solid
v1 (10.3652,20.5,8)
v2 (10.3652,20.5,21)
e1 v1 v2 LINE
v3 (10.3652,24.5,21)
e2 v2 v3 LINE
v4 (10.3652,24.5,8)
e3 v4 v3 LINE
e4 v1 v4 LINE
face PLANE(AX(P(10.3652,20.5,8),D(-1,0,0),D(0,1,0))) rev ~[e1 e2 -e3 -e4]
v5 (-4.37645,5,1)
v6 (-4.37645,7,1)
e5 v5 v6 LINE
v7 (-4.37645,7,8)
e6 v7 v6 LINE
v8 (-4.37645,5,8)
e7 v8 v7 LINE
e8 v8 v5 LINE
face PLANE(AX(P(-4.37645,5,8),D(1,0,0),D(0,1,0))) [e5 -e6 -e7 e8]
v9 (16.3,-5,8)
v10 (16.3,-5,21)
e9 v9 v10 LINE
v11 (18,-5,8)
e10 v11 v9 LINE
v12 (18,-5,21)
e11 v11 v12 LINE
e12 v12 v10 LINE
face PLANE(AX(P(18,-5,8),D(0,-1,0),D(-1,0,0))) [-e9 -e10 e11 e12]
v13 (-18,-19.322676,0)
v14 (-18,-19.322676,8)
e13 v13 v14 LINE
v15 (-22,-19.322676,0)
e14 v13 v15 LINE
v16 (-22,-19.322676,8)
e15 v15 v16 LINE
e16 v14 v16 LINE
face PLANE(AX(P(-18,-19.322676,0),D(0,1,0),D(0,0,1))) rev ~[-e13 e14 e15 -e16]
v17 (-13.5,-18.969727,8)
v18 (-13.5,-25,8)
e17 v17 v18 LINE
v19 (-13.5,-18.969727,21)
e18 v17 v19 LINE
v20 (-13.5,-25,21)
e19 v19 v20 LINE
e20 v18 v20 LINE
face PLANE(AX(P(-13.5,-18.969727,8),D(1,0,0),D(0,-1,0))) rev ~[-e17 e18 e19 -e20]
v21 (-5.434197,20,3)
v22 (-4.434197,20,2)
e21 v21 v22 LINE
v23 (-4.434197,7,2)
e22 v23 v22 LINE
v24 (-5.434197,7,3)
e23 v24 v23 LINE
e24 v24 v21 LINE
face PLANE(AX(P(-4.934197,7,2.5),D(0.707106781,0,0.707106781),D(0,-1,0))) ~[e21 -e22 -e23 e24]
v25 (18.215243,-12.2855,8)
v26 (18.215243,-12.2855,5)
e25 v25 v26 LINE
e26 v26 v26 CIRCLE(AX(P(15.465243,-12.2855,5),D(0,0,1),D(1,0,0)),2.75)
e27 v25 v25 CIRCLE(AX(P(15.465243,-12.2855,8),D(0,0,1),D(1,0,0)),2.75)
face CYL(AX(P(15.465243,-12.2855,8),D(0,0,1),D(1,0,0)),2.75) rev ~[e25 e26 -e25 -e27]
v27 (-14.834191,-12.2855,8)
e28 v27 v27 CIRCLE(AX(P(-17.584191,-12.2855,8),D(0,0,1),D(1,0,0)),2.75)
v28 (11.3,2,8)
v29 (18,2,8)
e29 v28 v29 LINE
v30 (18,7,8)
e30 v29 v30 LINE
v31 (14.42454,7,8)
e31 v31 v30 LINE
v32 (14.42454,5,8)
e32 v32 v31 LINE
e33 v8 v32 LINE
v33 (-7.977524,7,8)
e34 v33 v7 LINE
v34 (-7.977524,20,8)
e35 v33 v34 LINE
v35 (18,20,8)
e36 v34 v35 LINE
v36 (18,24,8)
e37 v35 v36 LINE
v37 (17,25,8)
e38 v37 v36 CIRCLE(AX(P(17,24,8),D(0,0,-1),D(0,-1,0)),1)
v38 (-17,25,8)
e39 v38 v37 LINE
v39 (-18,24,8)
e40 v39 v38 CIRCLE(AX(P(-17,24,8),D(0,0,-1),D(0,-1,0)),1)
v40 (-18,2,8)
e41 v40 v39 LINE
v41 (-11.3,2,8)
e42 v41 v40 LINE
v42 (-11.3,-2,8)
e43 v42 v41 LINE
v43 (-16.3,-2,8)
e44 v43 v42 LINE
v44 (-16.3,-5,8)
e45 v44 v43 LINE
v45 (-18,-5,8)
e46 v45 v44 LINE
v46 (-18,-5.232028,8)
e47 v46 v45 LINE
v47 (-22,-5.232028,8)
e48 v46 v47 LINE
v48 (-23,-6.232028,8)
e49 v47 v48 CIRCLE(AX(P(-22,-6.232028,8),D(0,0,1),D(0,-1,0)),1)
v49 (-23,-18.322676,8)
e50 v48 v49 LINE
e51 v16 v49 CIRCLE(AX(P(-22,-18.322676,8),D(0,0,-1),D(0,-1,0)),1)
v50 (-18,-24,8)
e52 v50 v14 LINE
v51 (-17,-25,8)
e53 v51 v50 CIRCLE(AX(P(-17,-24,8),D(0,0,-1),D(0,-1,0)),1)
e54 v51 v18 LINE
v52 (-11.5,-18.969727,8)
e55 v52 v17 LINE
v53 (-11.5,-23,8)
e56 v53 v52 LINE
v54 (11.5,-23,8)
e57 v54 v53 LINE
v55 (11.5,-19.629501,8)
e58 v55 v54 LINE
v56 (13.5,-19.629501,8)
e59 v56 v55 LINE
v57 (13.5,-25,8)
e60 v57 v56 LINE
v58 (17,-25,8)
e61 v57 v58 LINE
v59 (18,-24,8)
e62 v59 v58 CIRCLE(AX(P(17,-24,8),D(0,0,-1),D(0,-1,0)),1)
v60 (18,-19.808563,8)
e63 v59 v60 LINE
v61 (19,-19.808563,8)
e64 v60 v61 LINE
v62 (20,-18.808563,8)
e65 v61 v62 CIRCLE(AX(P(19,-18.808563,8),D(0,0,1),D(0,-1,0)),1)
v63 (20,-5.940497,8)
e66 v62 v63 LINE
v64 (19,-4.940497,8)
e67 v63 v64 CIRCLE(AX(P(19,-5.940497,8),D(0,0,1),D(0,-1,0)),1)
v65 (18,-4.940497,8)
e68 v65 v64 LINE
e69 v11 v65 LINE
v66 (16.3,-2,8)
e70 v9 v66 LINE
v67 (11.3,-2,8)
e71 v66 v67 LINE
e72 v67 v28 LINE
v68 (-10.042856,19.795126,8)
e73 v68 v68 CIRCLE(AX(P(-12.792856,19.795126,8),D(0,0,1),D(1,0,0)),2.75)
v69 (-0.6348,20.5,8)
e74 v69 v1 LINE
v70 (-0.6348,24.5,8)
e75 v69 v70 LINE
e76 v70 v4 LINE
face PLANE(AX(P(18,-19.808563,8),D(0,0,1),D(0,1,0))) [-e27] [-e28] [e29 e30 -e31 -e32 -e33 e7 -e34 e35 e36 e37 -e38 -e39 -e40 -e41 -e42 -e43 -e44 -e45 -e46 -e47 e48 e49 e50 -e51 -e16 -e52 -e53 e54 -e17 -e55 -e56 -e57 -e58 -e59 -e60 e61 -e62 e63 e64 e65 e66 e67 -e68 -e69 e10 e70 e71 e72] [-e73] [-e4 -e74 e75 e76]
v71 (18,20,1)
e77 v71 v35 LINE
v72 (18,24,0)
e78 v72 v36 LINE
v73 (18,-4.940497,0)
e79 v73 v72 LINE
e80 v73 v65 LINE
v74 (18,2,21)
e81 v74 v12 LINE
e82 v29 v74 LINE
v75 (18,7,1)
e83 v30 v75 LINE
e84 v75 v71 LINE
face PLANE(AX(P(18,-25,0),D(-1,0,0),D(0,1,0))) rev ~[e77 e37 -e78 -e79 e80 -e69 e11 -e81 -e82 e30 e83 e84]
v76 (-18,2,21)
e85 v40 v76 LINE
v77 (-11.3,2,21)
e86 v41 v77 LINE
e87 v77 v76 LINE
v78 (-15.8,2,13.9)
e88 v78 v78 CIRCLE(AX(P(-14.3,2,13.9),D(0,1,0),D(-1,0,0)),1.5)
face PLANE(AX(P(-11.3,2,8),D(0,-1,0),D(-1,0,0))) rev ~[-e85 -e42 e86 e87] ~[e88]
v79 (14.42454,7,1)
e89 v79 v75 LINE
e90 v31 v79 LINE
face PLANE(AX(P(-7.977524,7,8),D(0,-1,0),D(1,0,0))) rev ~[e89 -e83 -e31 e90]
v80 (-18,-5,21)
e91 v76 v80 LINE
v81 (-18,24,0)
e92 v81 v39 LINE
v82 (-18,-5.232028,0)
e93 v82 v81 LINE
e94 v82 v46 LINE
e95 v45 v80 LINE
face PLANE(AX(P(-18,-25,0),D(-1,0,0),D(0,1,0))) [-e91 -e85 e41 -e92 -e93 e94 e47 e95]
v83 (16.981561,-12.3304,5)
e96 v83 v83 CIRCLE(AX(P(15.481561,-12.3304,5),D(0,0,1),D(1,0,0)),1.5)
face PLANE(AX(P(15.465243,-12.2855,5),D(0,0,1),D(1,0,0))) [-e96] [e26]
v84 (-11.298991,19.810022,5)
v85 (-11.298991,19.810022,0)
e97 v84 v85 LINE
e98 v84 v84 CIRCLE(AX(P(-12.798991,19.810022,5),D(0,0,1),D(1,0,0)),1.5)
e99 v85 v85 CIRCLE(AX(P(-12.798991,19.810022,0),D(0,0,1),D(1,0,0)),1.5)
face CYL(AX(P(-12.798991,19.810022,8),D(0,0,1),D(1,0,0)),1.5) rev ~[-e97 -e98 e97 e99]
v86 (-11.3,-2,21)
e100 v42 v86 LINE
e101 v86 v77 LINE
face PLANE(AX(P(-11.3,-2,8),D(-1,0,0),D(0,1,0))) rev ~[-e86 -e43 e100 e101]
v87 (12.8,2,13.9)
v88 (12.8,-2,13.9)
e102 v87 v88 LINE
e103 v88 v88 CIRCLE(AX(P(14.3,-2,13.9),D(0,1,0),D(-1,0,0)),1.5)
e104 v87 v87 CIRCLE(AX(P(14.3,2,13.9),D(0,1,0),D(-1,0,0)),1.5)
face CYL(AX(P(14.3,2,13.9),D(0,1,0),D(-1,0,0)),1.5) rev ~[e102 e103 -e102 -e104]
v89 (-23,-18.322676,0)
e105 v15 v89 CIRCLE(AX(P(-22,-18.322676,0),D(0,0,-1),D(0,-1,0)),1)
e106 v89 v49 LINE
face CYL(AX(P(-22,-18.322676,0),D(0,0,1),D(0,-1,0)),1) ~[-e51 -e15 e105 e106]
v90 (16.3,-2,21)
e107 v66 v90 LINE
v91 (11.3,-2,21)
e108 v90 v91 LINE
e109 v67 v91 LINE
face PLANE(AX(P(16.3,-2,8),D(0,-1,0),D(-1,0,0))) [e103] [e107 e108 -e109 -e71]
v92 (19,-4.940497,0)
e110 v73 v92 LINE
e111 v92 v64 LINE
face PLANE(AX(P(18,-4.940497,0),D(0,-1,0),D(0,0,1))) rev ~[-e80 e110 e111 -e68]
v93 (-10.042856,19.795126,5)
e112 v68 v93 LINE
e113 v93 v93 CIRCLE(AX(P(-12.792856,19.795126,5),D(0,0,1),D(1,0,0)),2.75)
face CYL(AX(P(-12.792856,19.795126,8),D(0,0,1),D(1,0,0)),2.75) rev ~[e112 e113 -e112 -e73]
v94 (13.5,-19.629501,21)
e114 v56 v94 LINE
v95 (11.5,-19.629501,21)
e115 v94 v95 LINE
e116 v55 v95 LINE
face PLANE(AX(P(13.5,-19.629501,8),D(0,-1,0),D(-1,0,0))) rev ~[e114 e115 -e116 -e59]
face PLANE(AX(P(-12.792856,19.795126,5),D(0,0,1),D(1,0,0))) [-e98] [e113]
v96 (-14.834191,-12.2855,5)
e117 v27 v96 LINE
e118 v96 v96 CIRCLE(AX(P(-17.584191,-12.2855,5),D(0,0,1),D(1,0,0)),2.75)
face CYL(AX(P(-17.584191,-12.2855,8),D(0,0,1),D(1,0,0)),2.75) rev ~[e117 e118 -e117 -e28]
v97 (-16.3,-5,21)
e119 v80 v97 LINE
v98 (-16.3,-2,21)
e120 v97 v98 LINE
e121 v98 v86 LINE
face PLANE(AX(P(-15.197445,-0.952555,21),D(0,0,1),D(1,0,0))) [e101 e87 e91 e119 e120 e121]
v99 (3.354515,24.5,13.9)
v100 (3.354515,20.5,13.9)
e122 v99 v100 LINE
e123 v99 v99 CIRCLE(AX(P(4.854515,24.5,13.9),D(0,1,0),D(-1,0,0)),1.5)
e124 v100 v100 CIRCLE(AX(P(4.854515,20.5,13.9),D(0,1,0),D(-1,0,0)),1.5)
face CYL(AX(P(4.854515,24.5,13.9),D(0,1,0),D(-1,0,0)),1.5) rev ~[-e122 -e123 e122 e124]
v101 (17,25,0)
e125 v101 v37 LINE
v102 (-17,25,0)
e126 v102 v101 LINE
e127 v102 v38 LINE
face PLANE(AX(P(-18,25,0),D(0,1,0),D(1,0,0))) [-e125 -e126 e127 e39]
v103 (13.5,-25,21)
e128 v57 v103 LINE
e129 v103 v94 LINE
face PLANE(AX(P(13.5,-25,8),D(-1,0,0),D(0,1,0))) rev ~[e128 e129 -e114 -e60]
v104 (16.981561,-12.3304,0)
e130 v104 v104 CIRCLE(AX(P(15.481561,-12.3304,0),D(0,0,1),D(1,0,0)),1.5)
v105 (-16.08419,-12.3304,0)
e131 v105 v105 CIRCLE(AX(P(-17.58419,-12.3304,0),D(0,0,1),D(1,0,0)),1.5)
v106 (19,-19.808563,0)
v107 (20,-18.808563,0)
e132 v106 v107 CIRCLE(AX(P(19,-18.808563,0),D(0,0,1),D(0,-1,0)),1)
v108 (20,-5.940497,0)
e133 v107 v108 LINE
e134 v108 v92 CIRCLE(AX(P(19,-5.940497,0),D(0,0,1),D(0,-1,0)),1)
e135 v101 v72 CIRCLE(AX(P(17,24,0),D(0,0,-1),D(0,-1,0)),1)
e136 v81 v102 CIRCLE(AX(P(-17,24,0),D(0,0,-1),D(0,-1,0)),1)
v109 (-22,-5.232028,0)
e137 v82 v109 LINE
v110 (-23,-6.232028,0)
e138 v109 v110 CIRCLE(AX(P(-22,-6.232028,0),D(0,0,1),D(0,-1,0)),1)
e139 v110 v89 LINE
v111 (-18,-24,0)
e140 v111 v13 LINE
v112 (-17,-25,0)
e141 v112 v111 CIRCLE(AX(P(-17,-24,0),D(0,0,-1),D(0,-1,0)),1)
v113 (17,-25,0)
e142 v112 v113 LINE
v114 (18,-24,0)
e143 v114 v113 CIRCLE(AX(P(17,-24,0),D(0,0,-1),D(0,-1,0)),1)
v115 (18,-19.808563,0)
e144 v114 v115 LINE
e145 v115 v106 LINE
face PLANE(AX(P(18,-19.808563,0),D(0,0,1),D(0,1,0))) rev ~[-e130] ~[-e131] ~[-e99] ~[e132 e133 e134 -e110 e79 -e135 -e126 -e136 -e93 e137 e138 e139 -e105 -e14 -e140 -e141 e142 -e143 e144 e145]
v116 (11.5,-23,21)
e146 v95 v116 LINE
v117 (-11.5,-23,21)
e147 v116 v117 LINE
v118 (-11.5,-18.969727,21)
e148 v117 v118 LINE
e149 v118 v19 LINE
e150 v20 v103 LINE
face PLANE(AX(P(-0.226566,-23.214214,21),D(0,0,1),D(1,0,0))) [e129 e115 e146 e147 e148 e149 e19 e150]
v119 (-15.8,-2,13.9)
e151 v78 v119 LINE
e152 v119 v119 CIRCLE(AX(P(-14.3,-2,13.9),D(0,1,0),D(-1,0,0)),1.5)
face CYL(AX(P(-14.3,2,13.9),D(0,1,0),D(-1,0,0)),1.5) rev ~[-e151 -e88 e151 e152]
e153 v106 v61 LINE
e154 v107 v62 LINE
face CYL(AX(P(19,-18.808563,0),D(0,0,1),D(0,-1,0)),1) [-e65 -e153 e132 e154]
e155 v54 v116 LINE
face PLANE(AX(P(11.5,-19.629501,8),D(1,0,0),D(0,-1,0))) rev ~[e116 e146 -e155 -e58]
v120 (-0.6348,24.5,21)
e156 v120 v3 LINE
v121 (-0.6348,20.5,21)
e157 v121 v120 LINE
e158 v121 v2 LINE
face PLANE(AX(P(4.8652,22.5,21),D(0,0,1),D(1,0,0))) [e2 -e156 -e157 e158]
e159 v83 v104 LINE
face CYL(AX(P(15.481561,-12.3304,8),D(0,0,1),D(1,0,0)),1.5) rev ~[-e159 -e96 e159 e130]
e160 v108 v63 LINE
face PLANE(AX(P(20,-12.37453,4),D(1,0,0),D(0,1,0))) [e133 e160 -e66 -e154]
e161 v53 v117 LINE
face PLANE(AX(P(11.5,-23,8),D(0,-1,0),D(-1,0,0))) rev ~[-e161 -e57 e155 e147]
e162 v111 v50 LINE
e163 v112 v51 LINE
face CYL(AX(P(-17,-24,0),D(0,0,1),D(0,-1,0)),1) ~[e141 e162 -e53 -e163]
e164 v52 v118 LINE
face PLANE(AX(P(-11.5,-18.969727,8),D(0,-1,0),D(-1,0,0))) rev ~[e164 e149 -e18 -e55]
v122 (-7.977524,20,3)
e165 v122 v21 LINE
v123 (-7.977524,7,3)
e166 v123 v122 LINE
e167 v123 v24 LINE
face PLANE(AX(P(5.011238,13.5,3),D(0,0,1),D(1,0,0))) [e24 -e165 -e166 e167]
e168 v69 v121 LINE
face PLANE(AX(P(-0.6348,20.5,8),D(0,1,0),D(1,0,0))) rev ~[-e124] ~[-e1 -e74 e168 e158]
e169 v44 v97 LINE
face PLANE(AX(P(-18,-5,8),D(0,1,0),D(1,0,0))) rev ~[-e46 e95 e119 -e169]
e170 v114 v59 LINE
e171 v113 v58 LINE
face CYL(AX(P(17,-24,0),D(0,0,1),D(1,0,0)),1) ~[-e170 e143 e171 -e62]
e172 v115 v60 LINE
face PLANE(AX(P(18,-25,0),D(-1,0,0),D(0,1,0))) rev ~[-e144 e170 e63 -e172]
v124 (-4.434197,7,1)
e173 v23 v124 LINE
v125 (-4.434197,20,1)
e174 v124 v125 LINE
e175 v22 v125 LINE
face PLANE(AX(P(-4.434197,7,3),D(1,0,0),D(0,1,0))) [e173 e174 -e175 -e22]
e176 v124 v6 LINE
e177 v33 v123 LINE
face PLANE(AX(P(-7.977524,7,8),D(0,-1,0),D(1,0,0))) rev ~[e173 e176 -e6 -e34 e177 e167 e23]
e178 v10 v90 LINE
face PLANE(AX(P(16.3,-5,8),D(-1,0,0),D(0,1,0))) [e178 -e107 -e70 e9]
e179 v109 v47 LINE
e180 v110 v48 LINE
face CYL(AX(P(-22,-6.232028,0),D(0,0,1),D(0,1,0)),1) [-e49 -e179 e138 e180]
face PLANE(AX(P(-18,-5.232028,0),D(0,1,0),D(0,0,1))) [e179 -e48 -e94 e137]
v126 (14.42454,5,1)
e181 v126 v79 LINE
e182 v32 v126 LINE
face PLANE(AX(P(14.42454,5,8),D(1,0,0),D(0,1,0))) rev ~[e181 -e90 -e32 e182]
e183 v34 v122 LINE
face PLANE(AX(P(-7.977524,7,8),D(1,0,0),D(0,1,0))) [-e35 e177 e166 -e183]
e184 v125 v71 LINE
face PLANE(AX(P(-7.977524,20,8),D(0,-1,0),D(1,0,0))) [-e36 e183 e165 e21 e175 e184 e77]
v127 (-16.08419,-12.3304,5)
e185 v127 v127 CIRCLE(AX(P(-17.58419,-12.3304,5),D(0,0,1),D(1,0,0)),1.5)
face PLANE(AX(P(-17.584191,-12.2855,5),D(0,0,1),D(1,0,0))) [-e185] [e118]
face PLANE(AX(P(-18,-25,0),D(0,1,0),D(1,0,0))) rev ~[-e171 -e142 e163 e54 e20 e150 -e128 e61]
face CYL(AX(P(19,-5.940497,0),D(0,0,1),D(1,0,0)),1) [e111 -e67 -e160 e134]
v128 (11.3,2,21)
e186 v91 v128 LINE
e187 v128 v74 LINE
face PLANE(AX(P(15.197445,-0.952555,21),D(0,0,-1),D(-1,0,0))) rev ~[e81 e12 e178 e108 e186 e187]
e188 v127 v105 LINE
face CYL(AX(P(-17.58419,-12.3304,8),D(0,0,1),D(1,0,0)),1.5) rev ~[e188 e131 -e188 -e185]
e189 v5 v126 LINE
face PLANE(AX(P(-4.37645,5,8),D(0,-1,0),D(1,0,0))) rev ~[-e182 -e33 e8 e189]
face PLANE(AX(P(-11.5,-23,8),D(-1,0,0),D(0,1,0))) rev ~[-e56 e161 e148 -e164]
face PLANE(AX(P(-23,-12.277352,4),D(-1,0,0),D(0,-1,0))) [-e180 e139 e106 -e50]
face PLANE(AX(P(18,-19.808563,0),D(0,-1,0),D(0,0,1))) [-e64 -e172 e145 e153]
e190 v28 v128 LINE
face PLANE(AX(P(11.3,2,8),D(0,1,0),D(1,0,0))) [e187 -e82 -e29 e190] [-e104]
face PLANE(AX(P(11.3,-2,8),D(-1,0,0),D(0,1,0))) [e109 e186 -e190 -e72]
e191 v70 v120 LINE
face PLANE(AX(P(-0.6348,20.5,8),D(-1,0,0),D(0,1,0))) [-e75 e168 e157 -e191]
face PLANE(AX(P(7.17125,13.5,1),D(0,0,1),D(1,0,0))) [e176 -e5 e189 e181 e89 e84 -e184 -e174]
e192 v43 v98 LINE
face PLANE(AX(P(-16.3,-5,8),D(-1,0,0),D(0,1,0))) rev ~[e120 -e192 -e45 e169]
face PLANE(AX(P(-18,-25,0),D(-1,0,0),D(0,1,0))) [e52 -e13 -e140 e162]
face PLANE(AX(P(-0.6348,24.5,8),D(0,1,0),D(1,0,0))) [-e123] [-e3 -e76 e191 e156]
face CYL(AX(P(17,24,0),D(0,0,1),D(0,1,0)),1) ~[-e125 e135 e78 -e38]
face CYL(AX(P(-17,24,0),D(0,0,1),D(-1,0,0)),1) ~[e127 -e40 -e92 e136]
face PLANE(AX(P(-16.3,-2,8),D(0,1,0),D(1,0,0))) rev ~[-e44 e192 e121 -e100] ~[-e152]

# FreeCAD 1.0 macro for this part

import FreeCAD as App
import Part
import Sketcher

V = App.Vector
Q = App.Units.Quantity


def edges_at(feature, points):
    """Names of the edges that pass closest to the given points."""
    edges = feature.Shape.Edges
    near = lambda p: min(range(len(edges)), key=lambda i: edges[i].distToShape(Part.Vertex(*p))[0])
    return sorted({f"Edge{near(p) + 1}" for p in points})

doc = App.newDocument("Part")
body = doc.addObject("PartDesign::Body", "Body")

# Sketch on XY plane
sketch1 = doc.addObject("Sketcher::SketchObject", "Sketch")
body.addObject(sketch1)
sketch1.AttachmentSupport = (doc.XY_Plane, [""])
sketch1.MapMode = "FlatFace"
sketch1.addGeometry(Part.LineSegment(V(-18, 25, 0), V(-18, -25, 0)), False)
sketch1.addGeometry(Part.LineSegment(V(-18, -25, 0), V(18, -25, 0)), False)
sketch1.addGeometry(Part.LineSegment(V(18, -25, 0), V(18, 25, 0)), False)
sketch1.addGeometry(Part.LineSegment(V(18, 25, 0), V(-18, 25, 0)), False)
sketch1.addConstraint(Sketcher.Constraint("Coincident", 0, 2, 1, 1))
sketch1.addConstraint(Sketcher.Constraint("Coincident", 1, 2, 2, 1))
sketch1.addConstraint(Sketcher.Constraint("Coincident", 2, 2, 3, 1))
sketch1.addConstraint(Sketcher.Constraint("Coincident", 3, 2, 0, 1))
sketch1.addConstraint(Sketcher.Constraint("Vertical", 0))
sketch1.addConstraint(Sketcher.Constraint("Horizontal", 1))
sketch1.addConstraint(Sketcher.Constraint("Vertical", 2))
sketch1.addConstraint(Sketcher.Constraint("Horizontal", 3))
sketch1.addConstraint(Sketcher.Constraint("Symmetric", 0, 2, 2, 2, -1, 1))
sketch1.addConstraint(Sketcher.Constraint("DistanceX", 1, 1, 1, 2, Q("36 mm")))
sketch1.addConstraint(Sketcher.Constraint("DistanceY", 0, 2, 0, 1, Q("50 mm")))
pad1 = doc.addObject("PartDesign::Pad", "Pad")
body.addObject(pad1)
pad1.Profile = sketch1
pad1.Length = 8

# Sketch on XY plane
sketch2 = doc.addObject("Sketcher::SketchObject", "Sketch001")
body.addObject(sketch2)
sketch2.AttachmentSupport = (doc.XY_Plane, [""])
sketch2.MapMode = "FlatFace"
sketch2.AttachmentOffset = App.Placement(V(0, 0, 8), App.Rotation())
sketch2.addGeometry(Part.LineSegment(V(-13.5, -25, 0), V(13.5, -25, 0)), False)
sketch2.addGeometry(Part.LineSegment(V(13.5, -25, 0), V(13.5, -19.6, 0)), False)
sketch2.addGeometry(Part.LineSegment(V(13.5, -19.6, 0), V(11.5, -19.6, 0)), False)
sketch2.addGeometry(Part.LineSegment(V(11.5, -19.6, 0), V(11.5, -23, 0)), False)
sketch2.addGeometry(Part.LineSegment(V(11.5, -23, 0), V(-11.5, -23, 0)), False)
sketch2.addGeometry(Part.LineSegment(V(-11.5, -23, 0), V(-11.5, -19, 0)), False)
sketch2.addGeometry(Part.LineSegment(V(-11.5, -19, 0), V(-13.5, -19, 0)), False)
sketch2.addGeometry(Part.LineSegment(V(-13.5, -19, 0), V(-13.5, -25, 0)), False)
sketch2.addConstraint(Sketcher.Constraint("Coincident", 0, 2, 1, 1))
sketch2.addConstraint(Sketcher.Constraint("Coincident", 1, 2, 2, 1))
sketch2.addConstraint(Sketcher.Constraint("Coincident", 2, 2, 3, 1))
sketch2.addConstraint(Sketcher.Constraint("Coincident", 3, 2, 4, 1))
sketch2.addConstraint(Sketcher.Constraint("Coincident", 4, 2, 5, 1))
sketch2.addConstraint(Sketcher.Constraint("Coincident", 5, 2, 6, 1))
sketch2.addConstraint(Sketcher.Constraint("Coincident", 6, 2, 7, 1))
sketch2.addConstraint(Sketcher.Constraint("Coincident", 7, 2, 0, 1))
sketch2.addConstraint(Sketcher.Constraint("Horizontal", 0))
sketch2.addConstraint(Sketcher.Constraint("Vertical", 1))
sketch2.addConstraint(Sketcher.Constraint("Horizontal", 2))
sketch2.addConstraint(Sketcher.Constraint("Vertical", 3))
sketch2.addConstraint(Sketcher.Constraint("Horizontal", 4))
sketch2.addConstraint(Sketcher.Constraint("Vertical", 5))
sketch2.addConstraint(Sketcher.Constraint("Horizontal", 6))
sketch2.addConstraint(Sketcher.Constraint("Vertical", 7))
sketch2.addConstraint(Sketcher.Constraint("Equal", 2, 6))
sketch2.addConstraint(Sketcher.Constraint("DistanceX", 0, 1, 0, 2, Q("27 mm")))
sketch2.addConstraint(Sketcher.Constraint("DistanceX", 2, 2, 2, 1, Q("2 mm")))
sketch2.addConstraint(Sketcher.Constraint("DistanceY", 0, 2, -1, 1, Q("25 mm")))
sketch2.addConstraint(Sketcher.Constraint("DistanceY", 3, 2, -1, 1, Q("23 mm")))
sketch2.addConstraint(Sketcher.Constraint("DistanceX", -1, 1, 0, 2, Q("13.5 mm")))
sketch2.addConstraint(Sketcher.Constraint("DistanceY", 1, 1, 1, 2, Q("5.370499 mm")))
sketch2.addConstraint(Sketcher.Constraint("DistanceY", 5, 1, 5, 2, Q("4.030273 mm")))
pad2 = doc.addObject("PartDesign::Pad", "Pad001")
body.addObject(pad2)
pad2.Profile = sketch2
pad2.Length = 13

# Sketch on XY plane
sketch3 = doc.addObject("Sketcher::SketchObject", "Sketch002")
body.addObject(sketch3)
sketch3.AttachmentSupport = (doc.XY_Plane, [""])
sketch3.MapMode = "FlatFace"
sketch3.AttachmentOffset = App.Placement(V(0, 0, 8), App.Rotation())
sketch3.addGeometry(Part.LineSegment(V(-0.6, 24.5, 0), V(-0.6, 20.5, 0)), False)
sketch3.addGeometry(Part.LineSegment(V(-0.6, 20.5, 0), V(10.4, 20.5, 0)), False)
sketch3.addGeometry(Part.LineSegment(V(10.4, 20.5, 0), V(10.4, 24.5, 0)), False)
sketch3.addGeometry(Part.LineSegment(V(10.4, 24.5, 0), V(-0.6, 24.5, 0)), False)
sketch3.addConstraint(Sketcher.Constraint("Coincident", 0, 2, 1, 1))
sketch3.addConstraint(Sketcher.Constraint("Coincident", 1, 2, 2, 1))
sketch3.addConstraint(Sketcher.Constraint("Coincident", 2, 2, 3, 1))
sketch3.addConstraint(Sketcher.Constraint("Coincident", 3, 2, 0, 1))
sketch3.addConstraint(Sketcher.Constraint("Vertical", 0))
sketch3.addConstraint(Sketcher.Constraint("Horizontal", 1))
sketch3.addConstraint(Sketcher.Constraint("Vertical", 2))
sketch3.addConstraint(Sketcher.Constraint("Horizontal", 3))
sketch3.addConstraint(Sketcher.Constraint("DistanceX", 1, 1, 1, 2, Q("11 mm")))
sketch3.addConstraint(Sketcher.Constraint("DistanceY", 0, 2, 0, 1, Q("4 mm")))
sketch3.addConstraint(Sketcher.Constraint("DistanceY", -1, 1, 0, 2, Q("20.5 mm")))
sketch3.addConstraint(Sketcher.Constraint("DistanceX", 0, 2, -1, 1, Q("0.6348 mm")))
pad3 = doc.addObject("PartDesign::Pad", "Pad002")
body.addObject(pad3)
pad3.Profile = sketch3
pad3.Length = 13
body2 = doc.addObject("PartDesign::Body", "Body001")
body2.AllowCompound = True

# Sketch on XY plane
sketch4 = doc.addObject("Sketcher::SketchObject", "Sketch003")
body2.addObject(sketch4)
sketch4.AttachmentSupport = (doc.getObject("XY_Plane001"), [""])
sketch4.MapMode = "FlatFace"
sketch4.AttachmentOffset = App.Placement(V(0, 0, 8), App.Rotation())
sketch4.addGeometry(Part.LineSegment(V(18, 2, 0), V(11.3, 2, 0)), False)
sketch4.addGeometry(Part.LineSegment(V(11.3, 2, 0), V(11.3, -2, 0)), False)
sketch4.addGeometry(Part.LineSegment(V(11.3, -2, 0), V(16.3, -2, 0)), False)
sketch4.addGeometry(Part.LineSegment(V(16.3, -2, 0), V(16.3, -5, 0)), False)
sketch4.addGeometry(Part.LineSegment(V(16.3, -5, 0), V(18, -5, 0)), False)
sketch4.addGeometry(Part.LineSegment(V(18, -5, 0), V(18, 2, 0)), False)
sketch4.addGeometry(Part.LineSegment(V(-11.3, 2, 0), V(-18, 2, 0)), False)
sketch4.addGeometry(Part.LineSegment(V(-18, 2, 0), V(-18, -5, 0)), False)
sketch4.addGeometry(Part.LineSegment(V(-18, -5, 0), V(-16.3, -5, 0)), False)
sketch4.addGeometry(Part.LineSegment(V(-16.3, -5, 0), V(-16.3, -2, 0)), False)
sketch4.addGeometry(Part.LineSegment(V(-16.3, -2, 0), V(-11.3, -2, 0)), False)
sketch4.addGeometry(Part.LineSegment(V(-11.3, -2, 0), V(-11.3, 2, 0)), False)
sketch4.addConstraint(Sketcher.Constraint("Coincident", 0, 2, 1, 1))
sketch4.addConstraint(Sketcher.Constraint("Coincident", 1, 2, 2, 1))
sketch4.addConstraint(Sketcher.Constraint("Coincident", 2, 2, 3, 1))
sketch4.addConstraint(Sketcher.Constraint("Coincident", 3, 2, 4, 1))
sketch4.addConstraint(Sketcher.Constraint("Coincident", 4, 2, 5, 1))
sketch4.addConstraint(Sketcher.Constraint("Coincident", 5, 2, 0, 1))
sketch4.addConstraint(Sketcher.Constraint("Coincident", 6, 2, 7, 1))
sketch4.addConstraint(Sketcher.Constraint("Coincident", 7, 2, 8, 1))
sketch4.addConstraint(Sketcher.Constraint("Coincident", 8, 2, 9, 1))
sketch4.addConstraint(Sketcher.Constraint("Coincident", 9, 2, 10, 1))
sketch4.addConstraint(Sketcher.Constraint("Coincident", 10, 2, 11, 1))
sketch4.addConstraint(Sketcher.Constraint("Coincident", 11, 2, 6, 1))
sketch4.addConstraint(Sketcher.Constraint("Horizontal", 0))
sketch4.addConstraint(Sketcher.Constraint("Vertical", 1))
sketch4.addConstraint(Sketcher.Constraint("Horizontal", 2))
sketch4.addConstraint(Sketcher.Constraint("Vertical", 3))
sketch4.addConstraint(Sketcher.Constraint("Horizontal", 4))
sketch4.addConstraint(Sketcher.Constraint("Vertical", 5))
sketch4.addConstraint(Sketcher.Constraint("Horizontal", 6))
sketch4.addConstraint(Sketcher.Constraint("Vertical", 7))
sketch4.addConstraint(Sketcher.Constraint("Horizontal", 8))
sketch4.addConstraint(Sketcher.Constraint("Vertical", 9))
sketch4.addConstraint(Sketcher.Constraint("Horizontal", 10))
sketch4.addConstraint(Sketcher.Constraint("Vertical", 11))
sketch4.addConstraint(Sketcher.Constraint("Symmetric", 0, 2, 10, 2, -1, 1))
sketch4.addConstraint(Sketcher.Constraint("Symmetric", 5, 2, 6, 2, -2))
sketch4.addConstraint(Sketcher.Constraint("Symmetric", 3, 2, 8, 2, -2))
sketch4.addConstraint(Sketcher.Constraint("Horizontal", 2, 2, 9, 2))
sketch4.addConstraint(Sketcher.Constraint("DistanceX", 2, 1, 2, 2, Q("5 mm")))
sketch4.addConstraint(Sketcher.Constraint("DistanceY", 1, 2, 1, 1, Q("4 mm")))
sketch4.addConstraint(Sketcher.Constraint("DistanceY", 3, 2, 3, 1, Q("3 mm")))
sketch4.addConstraint(Sketcher.Constraint("DistanceX", 0, 2, 0, 1, Q("6.7 mm")))
sketch4.addConstraint(Sketcher.Constraint("DistanceX", -1, 1, 4, 2, Q("18 mm")))
pad4 = doc.addObject("PartDesign::Pad", "Pad003")
body2.addObject(pad4)
pad4.Profile = sketch4
pad4.Length = 13
doc.recompute()

boolean = doc.addObject("PartDesign::Boolean", "Boolean")
body2.addObject(boolean)
boolean.Type = "Fuse"
boolean.addObjects([body])

# Sketch on XY plane
sketch5 = doc.addObject("Sketcher::SketchObject", "Sketch004")
body2.addObject(sketch5)
sketch5.AttachmentSupport = (doc.getObject("XY_Plane001"), [""])
sketch5.MapMode = "FlatFace"
sketch5.AttachmentOffset = App.Placement(V(0, 0, 8), App.Rotation())
sketch5.addGeometry(Part.LineSegment(V(-8, 20, 0), V(-8, 7, 0)), False)
sketch5.addGeometry(Part.LineSegment(V(-8, 7, 0), V(18, 7, 0)), False)
sketch5.addGeometry(Part.LineSegment(V(18, 7, 0), V(18, 20, 0)), False)
sketch5.addGeometry(Part.LineSegment(V(18, 20, 0), V(-8, 20, 0)), False)
sketch5.addConstraint(Sketcher.Constraint("Coincident", 0, 2, 1, 1))
sketch5.addConstraint(Sketcher.Constraint("Coincident", 1, 2, 2, 1))
sketch5.addConstraint(Sketcher.Constraint("Coincident", 2, 2, 3, 1))
sketch5.addConstraint(Sketcher.Constraint("Coincident", 3, 2, 0, 1))
sketch5.addConstraint(Sketcher.Constraint("Vertical", 0))
sketch5.addConstraint(Sketcher.Constraint("Horizontal", 1))
sketch5.addConstraint(Sketcher.Constraint("Vertical", 2))
sketch5.addConstraint(Sketcher.Constraint("Horizontal", 3))
sketch5.addConstraint(Sketcher.Constraint("DistanceY", 0, 2, 0, 1, Q("13 mm")))
sketch5.addConstraint(Sketcher.Constraint("DistanceY", -1, 1, 0, 2, Q("7 mm")))
sketch5.addConstraint(Sketcher.Constraint("DistanceX", -1, 1, 1, 2, Q("18 mm")))
sketch5.addConstraint(Sketcher.Constraint("DistanceX", 1, 1, 1, 2, Q("25.977524 mm")))
pocket1 = doc.addObject("PartDesign::Pocket", "Pocket")
body2.addObject(pocket1)
pocket1.Profile = sketch5
pocket1.Length = 5

# Sketch on XZ plane
sketch6 = doc.addObject("Sketcher::SketchObject", "Sketch005")
body2.addObject(sketch6)
sketch6.AttachmentSupport = (doc.getObject("XZ_Plane001"), [""])
sketch6.MapMode = "FlatFace"
sketch6.AttachmentOffset = App.Placement(V(0, 0, -2), App.Rotation())
sketch6.addGeometry(Part.Circle(V(14.3, 13.9, 0), V(0, 0, 1), 1.5), False)
sketch6.addGeometry(Part.Circle(V(-14.3, 13.9, 0), V(0, 0, 1), 1.5), False)
sketch6.addConstraint(Sketcher.Constraint("Equal", 0, 1))
sketch6.addConstraint(Sketcher.Constraint("Symmetric", 0, 3, 1, 3, -2))
sketch6.addConstraint(Sketcher.Constraint("Diameter", 0, Q("3 mm")))
sketch6.addConstraint(Sketcher.Constraint("DistanceX", -1, 1, 0, 3, Q("14.3 mm")))
sketch6.addConstraint(Sketcher.Constraint("DistanceY", -1, 1, 0, 3, Q("13.9 mm")))
pocket2 = doc.addObject("PartDesign::Pocket", "Pocket001")
body2.addObject(pocket2)
pocket2.Profile = sketch6
pocket2.Length = 5
pocket2.Reversed = True

# Sketch on XZ plane
sketch7 = doc.addObject("Sketcher::SketchObject", "Sketch006")
body2.addObject(sketch7)
sketch7.AttachmentSupport = (doc.getObject("XZ_Plane001"), [""])
sketch7.MapMode = "FlatFace"
sketch7.AttachmentOffset = App.Placement(V(0, 0, -24.5), App.Rotation())
sketch7.addGeometry(Part.Circle(V(4.9, 13.9, 0), V(0, 0, 1), 1.5), False)
sketch7.addConstraint(Sketcher.Constraint("Diameter", 0, Q("3 mm")))
sketch7.addConstraint(Sketcher.Constraint("DistanceY", -1, 1, 0, 3, Q("13.9 mm")))
sketch7.addConstraint(Sketcher.Constraint("DistanceX", -1, 1, 0, 3, Q("4.854515 mm")))
pocket3 = doc.addObject("PartDesign::Pocket", "Pocket002")
body2.addObject(pocket3)
pocket3.Profile = sketch7
pocket3.Length = 5
pocket3.Reversed = True
doc.recompute()

chamfer = doc.addObject("PartDesign::Chamfer", "Chamfer")
body2.addObject(chamfer)
chamfer.Base = (pocket3, edges_at(pocket3, [(18, 13.5, 3)]))
chamfer.Size = 2
doc.recompute()

chamfer2 = doc.addObject("PartDesign::Chamfer", "Chamfer001")
body2.addObject(chamfer2)
chamfer2.Base = (chamfer, edges_at(chamfer, [(16, 13.5, 3)]))
chamfer2.Size = 2
doc.recompute()

chamfer3 = doc.addObject("PartDesign::Chamfer", "Chamfer002")
body2.addObject(chamfer3)
chamfer3.Base = (chamfer2, edges_at(chamfer2, [(14, 13.5, 3)]))
chamfer3.Size = 3
doc.recompute()

chamfer4 = doc.addObject("PartDesign::Chamfer", "Chamfer003")
body2.addObject(chamfer4)
chamfer4.Base = (chamfer3, edges_at(chamfer3, [(11, 13.5, 3)]))
chamfer4.Size = 2

# Sketch on XY plane
sketch8 = doc.addObject("Sketcher::SketchObject", "Sketch007")
body2.addObject(sketch8)
sketch8.AttachmentSupport = (doc.getObject("XY_Plane001"), [""])
sketch8.MapMode = "FlatFace"
sketch8.AttachmentOffset = App.Placement(V(0, 0, 3), App.Rotation())
sketch8.addGeometry(Part.LineSegment(V(-4, 20, 0), V(-4, 7, 0)), False)
sketch8.addGeometry(Part.LineSegment(V(-4, 7, 0), V(19, 7, 0)), False)
sketch8.addGeometry(Part.LineSegment(V(19, 7, 0), V(19, 20, 0)), False)
sketch8.addGeometry(Part.LineSegment(V(19, 20, 0), V(-4, 20, 0)), False)
sketch8.addConstraint(Sketcher.Constraint("Coincident", 0, 2, 1, 1))
sketch8.addConstraint(Sketcher.Constraint("Coincident", 1, 2, 2, 1))
sketch8.addConstraint(Sketcher.Constraint("Coincident", 2, 2, 3, 1))
sketch8.addConstraint(Sketcher.Constraint("Coincident", 3, 2, 0, 1))
sketch8.addConstraint(Sketcher.Constraint("Vertical", 0))
sketch8.addConstraint(Sketcher.Constraint("Horizontal", 1))
sketch8.addConstraint(Sketcher.Constraint("Vertical", 2))
sketch8.addConstraint(Sketcher.Constraint("Horizontal", 3))
sketch8.addConstraint(Sketcher.Constraint("DistanceY", 0, 2, 0, 1, Q("13 mm")))
sketch8.addConstraint(Sketcher.Constraint("DistanceY", -1, 1, 0, 2, Q("7 mm")))
sketch8.addConstraint(Sketcher.Constraint("DistanceX", 1, 1, 1, 2, Q("23.210894 mm")))
sketch8.addConstraint(Sketcher.Constraint("DistanceX", 0, 2, -1, 1, Q("4.434197 mm")))
pocket4 = doc.addObject("PartDesign::Pocket", "Pocket003")
body2.addObject(pocket4)
pocket4.Profile = sketch8
pocket4.Length = 2
doc.recompute()

chamfer5 = doc.addObject("PartDesign::Chamfer", "Chamfer004")
body2.addObject(chamfer5)
chamfer5.Base = (pocket4, edges_at(pocket4, [(-4.434, 13.5, 3)]))
chamfer5.Size = 1

# Sketch on YZ plane
sketch9 = doc.addObject("Sketcher::SketchObject", "Sketch008")
body2.addObject(sketch9)
sketch9.AttachmentSupport = (doc.getObject("YZ_Plane001"), [""])
sketch9.MapMode = "FlatFace"
sketch9.AttachmentOffset = App.Placement(V(0, 0, 18), App.Rotation())
sketch9.addGeometry(Part.LineSegment(V(-20, 8, 0), V(-20, 0, 0)), False)
sketch9.addGeometry(Part.LineSegment(V(-20, 0, 0), V(-5, 0, 0)), False)
sketch9.addGeometry(Part.LineSegment(V(-5, 0, 0), V(-5, 8, 0)), False)
sketch9.addGeometry(Part.LineSegment(V(-5, 8, 0), V(-20, 8, 0)), False)
sketch9.addConstraint(Sketcher.Constraint("Coincident", 0, 2, 1, 1))
sketch9.addConstraint(Sketcher.Constraint("Coincident", 1, 2, 2, 1))
sketch9.addConstraint(Sketcher.Constraint("Coincident", 2, 2, 3, 1))
sketch9.addConstraint(Sketcher.Constraint("Coincident", 3, 2, 0, 1))
sketch9.addConstraint(Sketcher.Constraint("Vertical", 0))
sketch9.addConstraint(Sketcher.Constraint("Horizontal", 1))
sketch9.addConstraint(Sketcher.Constraint("Vertical", 2))
sketch9.addConstraint(Sketcher.Constraint("Horizontal", 3))
sketch9.addConstraint(Sketcher.Constraint("PointOnObject", 0, 2, -1))
sketch9.addConstraint(Sketcher.Constraint("DistanceY", 0, 2, 0, 1, Q("8 mm")))
sketch9.addConstraint(Sketcher.Constraint("DistanceX", 1, 1, 1, 2, Q("14.868066 mm")))
sketch9.addConstraint(Sketcher.Constraint("DistanceX", 0, 2, -1, 1, Q("19.808563 mm")))
pad5 = doc.addObject("PartDesign::Pad", "Pad004")
body2.addObject(pad5)
pad5.Profile = sketch9
pad5.Length = 2
doc.recompute()

fillet = doc.addObject("PartDesign::Fillet", "Fillet")
body2.addObject(fillet)
fillet.Base = (pad5, edges_at(pad5, [(20, -19.809, 4), (20, -4.94, 4)]))
fillet.Radius = 1
doc.recompute()

fillet2 = doc.addObject("PartDesign::Fillet", "Fillet001")
body2.addObject(fillet2)
fillet2.Base = (fillet, edges_at(fillet, [(18, -25, 4), (18, 25, 4)]))
fillet2.Radius = 1
doc.recompute()

fillet3 = doc.addObject("PartDesign::Fillet", "Fillet002")
body2.addObject(fillet3)
fillet3.Base = (fillet2, edges_at(fillet2, [(-18, 25, 4), (-18, -25, 4)]))
fillet3.Radius = 1

# Sketch on YZ plane
sketch10 = doc.addObject("Sketcher::SketchObject", "Sketch009")
body2.addObject(sketch10)
sketch10.AttachmentSupport = (doc.getObject("YZ_Plane001"), [""])
sketch10.MapMode = "FlatFace"
sketch10.AttachmentOffset = App.Placement(V(0, 0, -18), App.Rotation())
sketch10.addGeometry(Part.LineSegment(V(-5, 8, 0), V(-5, 0, 0)), False)
sketch10.addGeometry(Part.LineSegment(V(-5, 0, 0), V(-19, 0, 0)), False)
sketch10.addGeometry(Part.LineSegment(V(-19, 0, 0), V(-19, 8, 0)), False)
sketch10.addGeometry(Part.LineSegment(V(-19, 8, 0), V(-5, 8, 0)), False)
sketch10.addConstraint(Sketcher.Constraint("Coincident", 0, 2, 1, 1))
sketch10.addConstraint(Sketcher.Constraint("Coincident", 1, 2, 2, 1))
sketch10.addConstraint(Sketcher.Constraint("Coincident", 2, 2, 3, 1))
sketch10.addConstraint(Sketcher.Constraint("Coincident", 3, 2, 0, 1))
sketch10.addConstraint(Sketcher.Constraint("Vertical", 0))
sketch10.addConstraint(Sketcher.Constraint("Horizontal", 1))
sketch10.addConstraint(Sketcher.Constraint("Vertical", 2))
sketch10.addConstraint(Sketcher.Constraint("Horizontal", 3))
sketch10.addConstraint(Sketcher.Constraint("PointOnObject", 0, 2, -1))
sketch10.addConstraint(Sketcher.Constraint("DistanceY", 0, 2, 0, 1, Q("8 mm")))
sketch10.addConstraint(Sketcher.Constraint("DistanceX", 1, 2, 1, 1, Q("14.090648 mm")))
sketch10.addConstraint(Sketcher.Constraint("DistanceX", 0, 2, -1, 1, Q("5.232028 mm")))
pad6 = doc.addObject("PartDesign::Pad", "Pad005")
body2.addObject(pad6)
pad6.Profile = sketch10
pad6.Length = 5
pad6.Reversed = True
doc.recompute()

fillet4 = doc.addObject("PartDesign::Fillet", "Fillet003")
body2.addObject(fillet4)
fillet4.Base = (pad6, edges_at(pad6, [(-23, -5.232, 4), (-23, -19.323, 4)]))
fillet4.Radius = 1

# Sketch on XY plane
sketch11 = doc.addObject("Sketcher::SketchObject", "Sketch010")
body2.addObject(sketch11)
sketch11.AttachmentSupport = (doc.getObject("XY_Plane001"), [""])
sketch11.MapMode = "FlatFace"
sketch11.AttachmentOffset = App.Placement(V(0, 0, 8), App.Rotation())
sketch11.addGeometry(Part.Circle(V(-17.6, -12.3, 0), V(0, 0, 1), 1.5), False)
sketch11.addGeometry(Part.Circle(V(15.5, -12.3, 0), V(0, 0, 1), 1.5), False)
sketch11.addGeometry(Part.Circle(V(-12.8, 19.8, 0), V(0, 0, 1), 1.5), False)
sketch11.addConstraint(Sketcher.Constraint("Equal", 0, 1))
sketch11.addConstraint(Sketcher.Constraint("Equal", 1, 2))
sketch11.addConstraint(Sketcher.Constraint("Horizontal", 0, 3, 1, 3))
sketch11.addConstraint(Sketcher.Constraint("Diameter", 0, Q("3 mm")))
sketch11.addConstraint(Sketcher.Constraint("DistanceY", 0, 3, -1, 1, Q("12.3304 mm")))
sketch11.addConstraint(Sketcher.Constraint("DistanceX", 0, 3, 2, 3, Q("4.785199 mm")))
sketch11.addConstraint(Sketcher.Constraint("DistanceX", 0, 3, -1, 1, Q("17.58419 mm")))
sketch11.addConstraint(Sketcher.Constraint("DistanceX", -1, 1, 1, 3, Q("15.481561 mm")))
sketch11.addConstraint(Sketcher.Constraint("DistanceY", -1, 1, 2, 3, Q("19.810022 mm")))
pocket5 = doc.addObject("PartDesign::Pocket", "Pocket004")
body2.addObject(pocket5)
pocket5.Profile = sketch11
pocket5.Type = "ThroughAll"

# Sketch on XY plane
sketch12 = doc.addObject("Sketcher::SketchObject", "Sketch011")
body2.addObject(sketch12)
sketch12.AttachmentSupport = (doc.getObject("XY_Plane001"), [""])
sketch12.MapMode = "FlatFace"
sketch12.AttachmentOffset = App.Placement(V(0, 0, 8), App.Rotation())
sketch12.addGeometry(Part.Circle(V(-17.6, -12.3, 0), V(0, 0, 1), 2.8), False)
sketch12.addGeometry(Part.Circle(V(15.5, -12.3, 0), V(0, 0, 1), 2.8), False)
sketch12.addGeometry(Part.Circle(V(-12.8, 19.8, 0), V(0, 0, 1), 2.8), False)
sketch12.addConstraint(Sketcher.Constraint("Equal", 0, 1))
sketch12.addConstraint(Sketcher.Constraint("Equal", 1, 2))
sketch12.addConstraint(Sketcher.Constraint("Horizontal", 0, 3, 1, 3))
sketch12.addConstraint(Sketcher.Constraint("Diameter", 0, Q("5.5 mm")))
sketch12.addConstraint(Sketcher.Constraint("DistanceY", 0, 3, -1, 1, Q("12.2855 mm")))
sketch12.addConstraint(Sketcher.Constraint("DistanceX", 2, 3, 1, 3, Q("28.258099 mm")))
sketch12.addConstraint(Sketcher.Constraint("DistanceX", 0, 3, -1, 1, Q("17.584191 mm")))
sketch12.addConstraint(Sketcher.Constraint("DistanceX", -1, 1, 1, 3, Q("15.465243 mm")))
sketch12.addConstraint(Sketcher.Constraint("DistanceY", -1, 1, 2, 3, Q("19.795126 mm")))
pocket6 = doc.addObject("PartDesign::Pocket", "Pocket005")
body2.addObject(pocket6)
pocket6.Profile = sketch12
pocket6.Length = 3

# Sketch on XY plane
sketch13 = doc.addObject("Sketcher::SketchObject", "Sketch012")
body2.addObject(sketch13)
sketch13.AttachmentSupport = (doc.getObject("XY_Plane001"), [""])
sketch13.MapMode = "FlatFace"
sketch13.AttachmentOffset = App.Placement(V(0, 0, 8), App.Rotation())
sketch13.addGeometry(Part.LineSegment(V(-4.4, 7, 0), V(-4.4, 5, 0)), False)
sketch13.addGeometry(Part.LineSegment(V(-4.4, 5, 0), V(14.4, 5, 0)), False)
sketch13.addGeometry(Part.LineSegment(V(14.4, 5, 0), V(14.4, 7, 0)), False)
sketch13.addGeometry(Part.LineSegment(V(14.4, 7, 0), V(-4.4, 7, 0)), False)
sketch13.addConstraint(Sketcher.Constraint("Coincident", 0, 2, 1, 1))
sketch13.addConstraint(Sketcher.Constraint("Coincident", 1, 2, 2, 1))
sketch13.addConstraint(Sketcher.Constraint("Coincident", 2, 2, 3, 1))
sketch13.addConstraint(Sketcher.Constraint("Coincident", 3, 2, 0, 1))
sketch13.addConstraint(Sketcher.Constraint("Vertical", 0))
sketch13.addConstraint(Sketcher.Constraint("Horizontal", 1))
sketch13.addConstraint(Sketcher.Constraint("Vertical", 2))
sketch13.addConstraint(Sketcher.Constraint("Horizontal", 3))
sketch13.addConstraint(Sketcher.Constraint("DistanceY", 0, 2, 0, 1, Q("2 mm")))
sketch13.addConstraint(Sketcher.Constraint("DistanceY", -1, 1, 0, 2, Q("5 mm")))
sketch13.addConstraint(Sketcher.Constraint("DistanceX", 1, 1, 1, 2, Q("18.80099 mm")))
sketch13.addConstraint(Sketcher.Constraint("DistanceX", 0, 2, -1, 1, Q("4.37645 mm")))
pocket7 = doc.addObject("PartDesign::Pocket", "Pocket006")
body2.addObject(pocket7)
pocket7.Profile = sketch13
pocket7.Length = 7

doc.recompute()
